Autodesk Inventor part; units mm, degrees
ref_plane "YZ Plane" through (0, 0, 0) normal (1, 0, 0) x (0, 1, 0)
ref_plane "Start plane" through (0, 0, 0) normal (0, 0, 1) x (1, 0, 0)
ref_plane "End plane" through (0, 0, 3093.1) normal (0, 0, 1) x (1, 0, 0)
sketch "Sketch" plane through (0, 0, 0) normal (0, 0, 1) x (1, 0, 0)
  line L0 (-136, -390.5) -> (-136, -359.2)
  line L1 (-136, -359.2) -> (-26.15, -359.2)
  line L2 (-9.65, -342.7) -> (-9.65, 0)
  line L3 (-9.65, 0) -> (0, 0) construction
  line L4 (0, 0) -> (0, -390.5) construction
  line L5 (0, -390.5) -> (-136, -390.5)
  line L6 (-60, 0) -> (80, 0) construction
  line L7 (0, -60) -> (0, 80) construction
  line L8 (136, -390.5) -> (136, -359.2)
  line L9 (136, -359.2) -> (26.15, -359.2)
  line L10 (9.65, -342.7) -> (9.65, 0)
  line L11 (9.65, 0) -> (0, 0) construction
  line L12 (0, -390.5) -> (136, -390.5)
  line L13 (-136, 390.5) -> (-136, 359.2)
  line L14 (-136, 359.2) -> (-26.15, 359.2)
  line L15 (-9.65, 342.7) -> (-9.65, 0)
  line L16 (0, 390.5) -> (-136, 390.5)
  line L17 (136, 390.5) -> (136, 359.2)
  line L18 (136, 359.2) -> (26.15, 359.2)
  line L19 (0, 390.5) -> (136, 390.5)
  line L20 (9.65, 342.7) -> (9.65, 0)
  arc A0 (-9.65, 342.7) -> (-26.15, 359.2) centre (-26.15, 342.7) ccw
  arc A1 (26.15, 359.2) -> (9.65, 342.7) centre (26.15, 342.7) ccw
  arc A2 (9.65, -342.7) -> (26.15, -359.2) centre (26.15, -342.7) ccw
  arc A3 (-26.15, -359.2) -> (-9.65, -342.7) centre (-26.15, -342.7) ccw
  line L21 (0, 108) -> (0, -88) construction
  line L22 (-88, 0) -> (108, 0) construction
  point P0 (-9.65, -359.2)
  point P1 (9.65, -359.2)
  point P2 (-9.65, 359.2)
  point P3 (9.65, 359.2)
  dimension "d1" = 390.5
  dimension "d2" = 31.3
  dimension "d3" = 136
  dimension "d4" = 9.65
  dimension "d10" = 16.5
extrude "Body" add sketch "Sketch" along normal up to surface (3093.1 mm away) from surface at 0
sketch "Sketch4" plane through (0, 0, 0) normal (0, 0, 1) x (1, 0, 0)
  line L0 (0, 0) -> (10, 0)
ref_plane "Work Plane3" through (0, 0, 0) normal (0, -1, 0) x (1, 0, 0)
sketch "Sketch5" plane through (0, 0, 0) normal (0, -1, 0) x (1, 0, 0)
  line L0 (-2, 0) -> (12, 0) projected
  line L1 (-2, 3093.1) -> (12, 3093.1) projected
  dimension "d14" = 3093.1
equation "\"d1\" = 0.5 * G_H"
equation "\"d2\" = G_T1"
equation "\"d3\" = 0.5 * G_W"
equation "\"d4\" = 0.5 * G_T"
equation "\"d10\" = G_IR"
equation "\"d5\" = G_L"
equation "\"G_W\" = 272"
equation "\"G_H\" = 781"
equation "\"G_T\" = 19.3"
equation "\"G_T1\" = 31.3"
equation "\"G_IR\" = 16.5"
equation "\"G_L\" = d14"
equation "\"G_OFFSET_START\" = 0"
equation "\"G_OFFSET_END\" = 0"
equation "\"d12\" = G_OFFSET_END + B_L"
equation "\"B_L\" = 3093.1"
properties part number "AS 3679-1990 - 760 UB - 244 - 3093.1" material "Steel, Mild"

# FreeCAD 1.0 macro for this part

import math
import FreeCAD as App
import Part
import Sketcher
from FreeCAD import Vector

doc = App.newDocument("Part")
body = doc.addObject("PartDesign::Body", "Body")

sketch1 = body.newObject("Sketcher::SketchObject", "Sketch")
sketch1.AttachmentSupport = (doc.getObject("XY_Plane"), [""])
sketch1.MapMode = "FlatFace"
sketch1.addGeometry([
    Part.LineSegment(Vector(-136, -359.2, 0), Vector(-136, -390.5, 0)),
    Part.LineSegment(Vector(-136, -390.5, 0), Vector(136, -390.5, 0)),
    Part.LineSegment(Vector(136, -390.5, 0), Vector(136, -359.2, 0)),
    Part.LineSegment(Vector(136, -359.2, 0), Vector(26.15, -359.2, 0)),
    Part.ArcOfCircle(Part.Circle(Vector(26.15, -342.7, 0), Vector(0, 0, 1), 16.5), math.radians(180), math.radians(270)),
    Part.LineSegment(Vector(9.65, -342.7, 0), Vector(9.65, 342.7, 0)),
    Part.ArcOfCircle(Part.Circle(Vector(26.15, 342.7, 0), Vector(0, 0, 1), 16.5), math.radians(90), math.radians(180)),
    Part.LineSegment(Vector(26.15, 359.2, 0), Vector(136, 359.2, 0)),
    Part.LineSegment(Vector(136, 359.2, 0), Vector(136, 390.5, 0)),
    Part.LineSegment(Vector(136, 390.5, 0), Vector(-136, 390.5, 0)),
    Part.LineSegment(Vector(-136, 390.5, 0), Vector(-136, 359.2, 0)),
    Part.LineSegment(Vector(-136, 359.2, 0), Vector(-26.15, 359.2, 0)),
    Part.ArcOfCircle(Part.Circle(Vector(-26.15, 342.7, 0), Vector(0, 0, 1), 16.5), math.radians(0), math.radians(90)),
    Part.LineSegment(Vector(-9.65, 342.7, 0), Vector(-9.65, -342.7, 0)),
    Part.ArcOfCircle(Part.Circle(Vector(-26.15, -342.7, 0), Vector(0, 0, 1), 16.5), math.radians(-90), math.radians(0)),
    Part.LineSegment(Vector(-26.15, -359.2, 0), Vector(-136, -359.2, 0)),
], False)
sketch1.addConstraint([
    Sketcher.Constraint("Coincident", 0, 2, 1, 1),
    Sketcher.Constraint("Coincident", 1, 2, 2, 1),
    Sketcher.Constraint("Coincident", 2, 2, 3, 1),
    Sketcher.Constraint("Tangent", 3, 2, 4, 2),
    Sketcher.Constraint("Tangent", 4, 1, 5, 1),
    Sketcher.Constraint("Tangent", 5, 2, 6, 2),
    Sketcher.Constraint("Tangent", 6, 1, 7, 1),
    Sketcher.Constraint("Coincident", 7, 2, 8, 1),
    Sketcher.Constraint("Coincident", 8, 2, 9, 1),
    Sketcher.Constraint("Coincident", 9, 2, 10, 1),
    Sketcher.Constraint("Coincident", 10, 2, 11, 1),
    Sketcher.Constraint("Tangent", 11, 2, 12, 2),
    Sketcher.Constraint("Tangent", 12, 1, 13, 1),
    Sketcher.Constraint("Tangent", 13, 2, 14, 2),
    Sketcher.Constraint("Tangent", 14, 1, 15, 1),
    Sketcher.Constraint("Coincident", 15, 2, 0, 1),
    Sketcher.Constraint("Vertical", 0),
    Sketcher.Constraint("Horizontal", 1),
    Sketcher.Constraint("Vertical", 2),
    Sketcher.Constraint("Horizontal", 3),
    Sketcher.Constraint("Vertical", 5),
    Sketcher.Constraint("Horizontal", 7),
    Sketcher.Constraint("Vertical", 8),
    Sketcher.Constraint("Horizontal", 9),
    Sketcher.Constraint("Vertical", 10),
    Sketcher.Constraint("Horizontal", 11),
    Sketcher.Constraint("Vertical", 13),
    Sketcher.Constraint("Horizontal", 15),
    Sketcher.Constraint("Equal", 4, 6),
    Sketcher.Constraint("Equal", 6, 12),
    Sketcher.Constraint("Equal", 12, 14),
    Sketcher.Constraint("Symmetric", 4, 3, 12, 3, -1, 1),
    Sketcher.Constraint("Symmetric", 0, 2, 8, 2, -1, 1),
    Sketcher.Constraint("Symmetric", 7, 2, 10, 2, -2),
    Sketcher.Constraint("Symmetric", 2, 2, 15, 2, -2),
    Sketcher.Constraint("Radius", 4, 16.5),
    Sketcher.Constraint("DistanceY", 0, 2, 0, 1, 31.3),
    Sketcher.Constraint("DistanceX", 0, 2, -1, 1, 136.0),
    Sketcher.Constraint("DistanceY", 0, 2, -1, 1, 390.5),
    Sketcher.Constraint("DistanceX", -1, 1, 4, 1, 9.65),
])
pad1 = body.newObject("PartDesign::Pad", "Pad")
pad1.Profile = sketch1
pad1.Length = 3093.1

doc.recompute()
